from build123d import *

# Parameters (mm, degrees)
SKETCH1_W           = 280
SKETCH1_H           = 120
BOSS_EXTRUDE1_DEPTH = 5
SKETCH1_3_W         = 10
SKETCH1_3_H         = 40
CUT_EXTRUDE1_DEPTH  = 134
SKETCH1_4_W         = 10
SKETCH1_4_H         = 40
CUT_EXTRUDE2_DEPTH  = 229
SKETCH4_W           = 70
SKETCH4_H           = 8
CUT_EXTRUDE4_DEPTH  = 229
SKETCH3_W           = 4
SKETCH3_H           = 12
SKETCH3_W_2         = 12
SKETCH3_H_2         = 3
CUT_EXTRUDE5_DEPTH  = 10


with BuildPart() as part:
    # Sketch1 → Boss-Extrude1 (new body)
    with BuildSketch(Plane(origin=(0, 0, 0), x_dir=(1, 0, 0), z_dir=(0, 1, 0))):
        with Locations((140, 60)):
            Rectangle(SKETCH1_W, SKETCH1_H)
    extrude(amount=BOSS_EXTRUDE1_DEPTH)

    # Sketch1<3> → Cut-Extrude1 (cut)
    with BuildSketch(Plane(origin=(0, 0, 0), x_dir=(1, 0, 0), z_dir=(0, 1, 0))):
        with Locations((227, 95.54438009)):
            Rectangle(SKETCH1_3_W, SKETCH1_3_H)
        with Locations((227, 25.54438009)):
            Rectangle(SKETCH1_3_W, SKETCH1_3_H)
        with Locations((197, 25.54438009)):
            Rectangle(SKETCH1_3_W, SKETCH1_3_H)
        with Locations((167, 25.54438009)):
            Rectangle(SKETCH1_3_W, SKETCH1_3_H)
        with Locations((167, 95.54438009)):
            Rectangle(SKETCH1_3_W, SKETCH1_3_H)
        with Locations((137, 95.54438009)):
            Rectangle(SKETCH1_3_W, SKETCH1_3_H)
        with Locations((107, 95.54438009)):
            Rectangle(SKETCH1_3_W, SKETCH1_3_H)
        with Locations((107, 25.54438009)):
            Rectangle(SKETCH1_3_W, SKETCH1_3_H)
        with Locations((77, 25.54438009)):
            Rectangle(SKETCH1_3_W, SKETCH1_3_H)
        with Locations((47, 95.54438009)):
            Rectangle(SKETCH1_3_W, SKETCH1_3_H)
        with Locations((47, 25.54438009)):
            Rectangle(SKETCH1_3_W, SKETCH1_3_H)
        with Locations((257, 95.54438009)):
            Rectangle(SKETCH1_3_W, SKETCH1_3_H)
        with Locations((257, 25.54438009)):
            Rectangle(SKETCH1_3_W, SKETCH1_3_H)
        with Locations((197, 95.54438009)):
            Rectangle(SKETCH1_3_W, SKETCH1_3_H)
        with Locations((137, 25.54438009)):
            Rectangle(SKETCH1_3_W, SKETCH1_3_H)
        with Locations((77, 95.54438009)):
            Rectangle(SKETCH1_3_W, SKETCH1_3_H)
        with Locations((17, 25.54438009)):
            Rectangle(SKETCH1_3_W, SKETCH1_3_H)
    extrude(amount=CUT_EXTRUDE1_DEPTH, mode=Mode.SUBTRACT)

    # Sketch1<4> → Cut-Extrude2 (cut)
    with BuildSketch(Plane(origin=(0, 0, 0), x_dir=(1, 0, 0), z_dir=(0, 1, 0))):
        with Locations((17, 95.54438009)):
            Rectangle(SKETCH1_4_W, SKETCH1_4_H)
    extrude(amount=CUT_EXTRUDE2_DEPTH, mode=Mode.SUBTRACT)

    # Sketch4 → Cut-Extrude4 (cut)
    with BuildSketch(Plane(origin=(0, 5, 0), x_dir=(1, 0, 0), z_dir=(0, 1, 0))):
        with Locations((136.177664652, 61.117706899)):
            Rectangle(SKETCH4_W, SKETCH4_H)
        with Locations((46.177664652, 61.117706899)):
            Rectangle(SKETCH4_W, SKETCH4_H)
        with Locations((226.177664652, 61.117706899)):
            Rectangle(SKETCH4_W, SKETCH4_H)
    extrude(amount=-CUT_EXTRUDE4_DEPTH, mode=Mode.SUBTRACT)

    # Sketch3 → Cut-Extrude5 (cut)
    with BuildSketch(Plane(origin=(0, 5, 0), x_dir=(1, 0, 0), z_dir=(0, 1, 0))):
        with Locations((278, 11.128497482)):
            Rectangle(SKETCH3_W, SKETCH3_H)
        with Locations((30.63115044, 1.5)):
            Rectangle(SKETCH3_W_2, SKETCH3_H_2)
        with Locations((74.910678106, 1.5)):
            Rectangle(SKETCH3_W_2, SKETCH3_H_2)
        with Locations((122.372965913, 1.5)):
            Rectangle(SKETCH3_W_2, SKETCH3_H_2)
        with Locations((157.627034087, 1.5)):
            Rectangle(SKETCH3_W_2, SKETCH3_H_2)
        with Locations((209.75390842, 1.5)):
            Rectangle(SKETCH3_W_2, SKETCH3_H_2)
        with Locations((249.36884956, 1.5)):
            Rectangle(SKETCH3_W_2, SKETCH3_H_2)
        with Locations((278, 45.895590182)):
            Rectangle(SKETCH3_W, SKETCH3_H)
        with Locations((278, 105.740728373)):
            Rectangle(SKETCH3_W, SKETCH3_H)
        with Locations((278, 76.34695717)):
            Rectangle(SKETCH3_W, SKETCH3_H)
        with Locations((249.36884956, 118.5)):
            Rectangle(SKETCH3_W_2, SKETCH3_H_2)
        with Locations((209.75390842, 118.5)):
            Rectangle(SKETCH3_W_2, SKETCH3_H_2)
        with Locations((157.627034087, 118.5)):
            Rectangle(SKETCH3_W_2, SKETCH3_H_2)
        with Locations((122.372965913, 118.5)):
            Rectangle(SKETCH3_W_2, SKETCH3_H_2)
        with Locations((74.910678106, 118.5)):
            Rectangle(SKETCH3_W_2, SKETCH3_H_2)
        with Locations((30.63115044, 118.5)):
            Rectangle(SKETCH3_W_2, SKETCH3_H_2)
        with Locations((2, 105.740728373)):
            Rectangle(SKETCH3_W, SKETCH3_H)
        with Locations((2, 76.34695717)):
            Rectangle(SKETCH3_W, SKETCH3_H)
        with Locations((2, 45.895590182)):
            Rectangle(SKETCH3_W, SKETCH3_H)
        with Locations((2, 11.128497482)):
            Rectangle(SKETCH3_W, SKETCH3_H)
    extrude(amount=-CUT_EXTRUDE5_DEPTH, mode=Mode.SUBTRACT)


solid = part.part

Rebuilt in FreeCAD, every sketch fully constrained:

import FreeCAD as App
import Part
import Sketcher

V = App.Vector
Q = App.Units.Quantity


def add_polygon(sketch, points):
    """Adds a closed chain of lines whose ends are joined by coincident constraints."""
    first, n = sketch.GeometryCount, len(points)
    for a, b in zip(points, points[1:] + points[:1]):
        sketch.addGeometry(Part.LineSegment(App.Vector(*a, 0), App.Vector(*b, 0)), False)
    for i in range(n):
        sketch.addConstraint(Sketcher.Constraint("Coincident", first + i, 2, first + (i + 1) % n, 1))

doc = App.newDocument("Part")
body = doc.addObject("PartDesign::Body", "Body")

sketch1 = body.newObject("Sketcher::SketchObject", "Sketch")
sketch1.AttachmentSupport = (doc.getObject("XZ_Plane"), [""])
sketch1.MapMode = "FlatFace"
add_polygon(sketch1, [(0, -120), (0, 0), (280, 0), (280, -120)])
sketch1.addConstraint([
    Sketcher.Constraint("Vertical", 0),
    Sketcher.Constraint("Horizontal", 1),
    Sketcher.Constraint("Vertical", 2),
    Sketcher.Constraint("Horizontal", 3),
    Sketcher.Constraint("Coincident", 0, 2, -1, 1),
    Sketcher.Constraint("DistanceX", 1, 1, 1, 2, Q("280 mm")),
    Sketcher.Constraint("DistanceY", 0, 1, 0, 2, Q("120 mm")),
])
pad1 = body.newObject("PartDesign::Pad", "Pad")
pad1.Profile = sketch1
pad1.Length = 5
pad1.Reversed = True

sketch2 = body.newObject("Sketcher::SketchObject", "Sketch001")
sketch2.AttachmentSupport = (doc.getObject("XZ_Plane"), [""])
sketch2.MapMode = "FlatFace"
add_polygon(sketch2, [(222, -116), (222, -76), (232, -76), (232, -116)])
add_polygon(sketch2, [(222, -46), (222, -6), (232, -6), (232, -46)])
add_polygon(sketch2, [(192, -46), (192, -6), (202, -6), (202, -46)])
add_polygon(sketch2, [(162, -46), (162, -6), (172, -6), (172, -46)])
add_polygon(sketch2, [(162, -116), (162, -76), (172, -76), (172, -116)])
add_polygon(sketch2, [(132, -116), (132, -76), (142, -76), (142, -116)])
add_polygon(sketch2, [(102, -116), (102, -76), (112, -76), (112, -116)])
add_polygon(sketch2, [(102, -46), (102, -6), (112, -6), (112, -46)])
add_polygon(sketch2, [(72, -46), (72, -6), (82, -6), (82, -46)])
add_polygon(sketch2, [(42, -116), (42, -76), (52, -76), (52, -116)])
add_polygon(sketch2, [(42, -46), (42, -6), (52, -6), (52, -46)])
add_polygon(sketch2, [(252, -116), (252, -76), (262, -76), (262, -116)])
add_polygon(sketch2, [(252, -46), (252, -6), (262, -6), (262, -46)])
add_polygon(sketch2, [(192, -116), (192, -76), (202, -76), (202, -116)])
add_polygon(sketch2, [(132, -46), (132, -6), (142, -6), (142, -46)])
add_polygon(sketch2, [(72, -116), (72, -76), (82, -76), (82, -116)])
add_polygon(sketch2, [(12, -46), (12, -6), (22, -6), (22, -46)])
sketch2.addConstraint([
    Sketcher.Constraint("Vertical", 0),
    Sketcher.Constraint("Horizontal", 1),
    Sketcher.Constraint("Vertical", 2),
    Sketcher.Constraint("Horizontal", 3),
    Sketcher.Constraint("Vertical", 4),
    Sketcher.Constraint("Horizontal", 5),
    Sketcher.Constraint("Vertical", 6),
    Sketcher.Constraint("Horizontal", 7),
    Sketcher.Constraint("Vertical", 8),
    Sketcher.Constraint("Horizontal", 9),
    Sketcher.Constraint("Vertical", 10),
    Sketcher.Constraint("Horizontal", 11),
    Sketcher.Constraint("Vertical", 12),
    Sketcher.Constraint("Horizontal", 13),
    Sketcher.Constraint("Vertical", 14),
    Sketcher.Constraint("Horizontal", 15),
    Sketcher.Constraint("Vertical", 16),
    Sketcher.Constraint("Horizontal", 17),
    Sketcher.Constraint("Vertical", 18),
    Sketcher.Constraint("Horizontal", 19),
    Sketcher.Constraint("Vertical", 20),
    Sketcher.Constraint("Horizontal", 21),
    Sketcher.Constraint("Vertical", 22),
    Sketcher.Constraint("Horizontal", 23),
    Sketcher.Constraint("Vertical", 24),
    Sketcher.Constraint("Horizontal", 25),
    Sketcher.Constraint("Vertical", 26),
    Sketcher.Constraint("Horizontal", 27),
    Sketcher.Constraint("Vertical", 28),
    Sketcher.Constraint("Horizontal", 29),
    Sketcher.Constraint("Vertical", 30),
    Sketcher.Constraint("Horizontal", 31),
    Sketcher.Constraint("Vertical", 32),
    Sketcher.Constraint("Horizontal", 33),
    Sketcher.Constraint("Vertical", 34),
    Sketcher.Constraint("Horizontal", 35),
    Sketcher.Constraint("Vertical", 36),
    Sketcher.Constraint("Horizontal", 37),
    Sketcher.Constraint("Vertical", 38),
    Sketcher.Constraint("Horizontal", 39),
    Sketcher.Constraint("Vertical", 40),
    Sketcher.Constraint("Horizontal", 41),
    Sketcher.Constraint("Vertical", 42),
    Sketcher.Constraint("Horizontal", 43),
    Sketcher.Constraint("Vertical", 44),
    Sketcher.Constraint("Horizontal", 45),
    Sketcher.Constraint("Vertical", 46),
    Sketcher.Constraint("Horizontal", 47),
    Sketcher.Constraint("Vertical", 48),
    Sketcher.Constraint("Horizontal", 49),
    Sketcher.Constraint("Vertical", 50),
    Sketcher.Constraint("Horizontal", 51),
    Sketcher.Constraint("Vertical", 52),
    Sketcher.Constraint("Horizontal", 53),
    Sketcher.Constraint("Vertical", 54),
    Sketcher.Constraint("Horizontal", 55),
    Sketcher.Constraint("Vertical", 56),
    Sketcher.Constraint("Horizontal", 57),
    Sketcher.Constraint("Vertical", 58),
    Sketcher.Constraint("Horizontal", 59),
    Sketcher.Constraint("Vertical", 60),
    Sketcher.Constraint("Horizontal", 61),
    Sketcher.Constraint("Vertical", 62),
    Sketcher.Constraint("Horizontal", 63),
    Sketcher.Constraint("Vertical", 64),
    Sketcher.Constraint("Horizontal", 65),
    Sketcher.Constraint("Vertical", 66),
    Sketcher.Constraint("Horizontal", 67),
    Sketcher.Constraint("Horizontal", 5, 2, 8, 2),
    Sketcher.Constraint("Horizontal", 7, 2, 10, 2),
    Sketcher.Constraint("Horizontal", 9, 2, 12, 2),
    Sketcher.Constraint("Horizontal", 11, 2, 14, 2),
    Sketcher.Constraint("Horizontal", 1, 2, 16, 2),
    Sketcher.Constraint("Horizontal", 3, 2, 18, 2),
    Sketcher.Constraint("Horizontal", 17, 2, 20, 2),
    Sketcher.Constraint("Horizontal", 19, 2, 22, 2),
    Sketcher.Constraint("Horizontal", 21, 2, 24, 2),
    Sketcher.Constraint("Horizontal", 23, 2, 26, 2),
    Sketcher.Constraint("Horizontal", 13, 2, 28, 2),
    Sketcher.Constraint("Horizontal", 15, 2, 30, 2),
    Sketcher.Constraint("Horizontal", 29, 2, 32, 2),
    Sketcher.Constraint("Horizontal", 31, 2, 34, 2),
    Sketcher.Constraint("Horizontal", 25, 2, 36, 2),
    Sketcher.Constraint("Horizontal", 27, 2, 38, 2),
    Sketcher.Constraint("Horizontal", 33, 2, 40, 2),
    Sketcher.Constraint("Horizontal", 35, 2, 42, 2),
    Sketcher.Constraint("Horizontal", 37, 2, 44, 2),
    Sketcher.Constraint("Horizontal", 39, 2, 46, 2),
    Sketcher.Constraint("Horizontal", 41, 2, 48, 2),
    Sketcher.Constraint("Horizontal", 43, 2, 50, 2),
    Sketcher.Constraint("Horizontal", 45, 2, 52, 2),
    Sketcher.Constraint("Horizontal", 47, 2, 54, 2),
    Sketcher.Constraint("Horizontal", 49, 2, 56, 2),
    Sketcher.Constraint("Horizontal", 51, 2, 58, 2),
    Sketcher.Constraint("Horizontal", 53, 2, 60, 2),
    Sketcher.Constraint("Horizontal", 55, 2, 62, 2),
    Sketcher.Constraint("Horizontal", 57, 2, 64, 2),
    Sketcher.Constraint("Horizontal", 59, 2, 66, 2),
    Sketcher.Constraint("Vertical", 3, 2, 4, 2),
    Sketcher.Constraint("Vertical", 2, 2, 5, 2),
    Sketcher.Constraint("Vertical", 15, 2, 16, 2),
    Sketcher.Constraint("Vertical", 14, 2, 17, 2),
    Sketcher.Constraint("Vertical", 27, 2, 28, 2),
    Sketcher.Constraint("Vertical", 26, 2, 29, 2),
    Sketcher.Constraint("Vertical", 39, 2, 40, 2),
    Sketcher.Constraint("Vertical", 38, 2, 41, 2),
    Sketcher.Constraint("Vertical", 47, 2, 48, 2),
    Sketcher.Constraint("Vertical", 46, 2, 49, 2),
    Sketcher.Constraint("Vertical", 11, 2, 52, 2),
    Sketcher.Constraint("Vertical", 10, 2, 53, 2),
    Sketcher.Constraint("Vertical", 23, 2, 56, 2),
    Sketcher.Constraint("Vertical", 22, 2, 57, 2),
    Sketcher.Constraint("Vertical", 35, 2, 60, 2),
    Sketcher.Constraint("Vertical", 34, 2, 61, 2),
    Sketcher.Constraint("Equal", 7, 9),
    Sketcher.Constraint("Equal", 11, 13),
    Sketcher.Constraint("Equal", 19, 21),
    Sketcher.Constraint("Equal", 23, 25),
    Sketcher.Constraint("Equal", 31, 33),
    Sketcher.Constraint("Equal", 35, 37),
    Sketcher.Constraint("Equal", 43, 45),
    Sketcher.Constraint("Equal", 63, 65),
    Sketcher.Constraint("Equal", 2, 4),
    Sketcher.Constraint("DistanceX", 1, 1, 1, 2, Q("10 mm")),
    Sketcher.Constraint("DistanceY", 0, 1, 0, 2, Q("40 mm")),
    Sketcher.Constraint("DistanceX", -1, 1, 0, 2, Q("222 mm")),
    Sketcher.Constraint("DistanceX", -1, 1, 8, 2, Q("192 mm")),
    Sketcher.Constraint("DistanceX", -1, 1, 12, 2, Q("162 mm")),
    Sketcher.Constraint("DistanceX", -1, 1, 20, 2, Q("132 mm")),
    Sketcher.Constraint("DistanceX", -1, 1, 24, 2, Q("102 mm")),
    Sketcher.Constraint("DistanceX", -1, 1, 32, 2, Q("72 mm")),
    Sketcher.Constraint("DistanceX", -1, 1, 36, 2, Q("42 mm")),
    Sketcher.Constraint("DistanceX", -1, 1, 44, 2, Q("252 mm")),
    Sketcher.Constraint("DistanceX", -1, 1, 64, 2, Q("12 mm")),
    Sketcher.Constraint("DistanceY", 0, 2, -1, 1, Q("75.54438 mm")),
    Sketcher.Constraint("DistanceY", 4, 2, -1, 1, Q("5.54438 mm")),
])
pocket1 = body.newObject("PartDesign::Pocket", "Pocket")
pocket1.Profile = sketch2
pocket1.Length = 134

sketch3 = body.newObject("Sketcher::SketchObject", "Sketch002")
sketch3.AttachmentSupport = (doc.getObject("XZ_Plane"), [""])
sketch3.MapMode = "FlatFace"
add_polygon(sketch3, [(12, -116), (12, -76), (22, -76), (22, -116)])
sketch3.addConstraint([
    Sketcher.Constraint("Vertical", 0),
    Sketcher.Constraint("Horizontal", 1),
    Sketcher.Constraint("Vertical", 2),
    Sketcher.Constraint("Horizontal", 3),
    Sketcher.Constraint("DistanceX", 1, 1, 1, 2, Q("10 mm")),
    Sketcher.Constraint("DistanceY", 0, 1, 0, 2, Q("40 mm")),
    Sketcher.Constraint("DistanceX", -1, 1, 0, 2, Q("12 mm")),
    Sketcher.Constraint("DistanceY", 0, 2, -1, 1, Q("75.54438 mm")),
])
pocket2 = body.newObject("PartDesign::Pocket", "Pocket001")
pocket2.Profile = sketch3
pocket2.Length = 229

sketch4 = body.newObject("Sketcher::SketchObject", "Sketch003")
sketch4.AttachmentSupport = (doc.getObject("XZ_Plane"), [""])
sketch4.MapMode = "FlatFace"
sketch4.AttachmentOffset = App.Placement(V(0, 0, -5), App.Rotation())
add_polygon(sketch4, [(101, -65), (101, -57), (171, -57), (171, -65)])
add_polygon(sketch4, [(11, -65), (11, -57), (81, -57), (81, -65)])
add_polygon(sketch4, [(191, -65), (191, -57), (261, -57), (261, -65)])
sketch4.addConstraint([
    Sketcher.Constraint("Vertical", 0),
    Sketcher.Constraint("Horizontal", 1),
    Sketcher.Constraint("Vertical", 2),
    Sketcher.Constraint("Horizontal", 3),
    Sketcher.Constraint("Vertical", 4),
    Sketcher.Constraint("Horizontal", 5),
    Sketcher.Constraint("Vertical", 6),
    Sketcher.Constraint("Horizontal", 7),
    Sketcher.Constraint("Vertical", 8),
    Sketcher.Constraint("Horizontal", 9),
    Sketcher.Constraint("Vertical", 10),
    Sketcher.Constraint("Horizontal", 11),
    Sketcher.Constraint("Horizontal", 1, 2, 4, 2),
    Sketcher.Constraint("Horizontal", 3, 2, 6, 2),
    Sketcher.Constraint("Horizontal", 5, 2, 8, 2),
    Sketcher.Constraint("Horizontal", 7, 2, 10, 2),
    Sketcher.Constraint("Equal", 3, 5),
    Sketcher.Constraint("Equal", 7, 9),
    Sketcher.Constraint("DistanceX", 1, 1, 1, 2, Q("70 mm")),
    Sketcher.Constraint("DistanceY", 0, 1, 0, 2, Q("8 mm")),
    Sketcher.Constraint("DistanceX", 4, 2, 0, 2, Q("90 mm")),
    Sketcher.Constraint("DistanceX", 1, 2, 8, 2, Q("20 mm")),
    Sketcher.Constraint("DistanceX", -1, 1, 0, 2, Q("101.177665 mm")),
    Sketcher.Constraint("DistanceY", 0, 2, -1, 1, Q("57.117707 mm")),
])
pocket3 = body.newObject("PartDesign::Pocket", "Pocket002")
pocket3.Profile = sketch4
pocket3.Length = 229
pocket3.Reversed = True

sketch5 = body.newObject("Sketcher::SketchObject", "Sketch004")
sketch5.AttachmentSupport = (doc.getObject("XZ_Plane"), [""])
sketch5.MapMode = "FlatFace"
sketch5.AttachmentOffset = App.Placement(V(0, 0, -5), App.Rotation())
add_polygon(sketch5, [(276, -17.1), (276, -5.1), (280, -5.1), (280, -17.1)])
add_polygon(sketch5, [(24.6, -3), (24.6, 0), (36.6, 0), (36.6, -3)])
add_polygon(sketch5, [(68.9, -3), (68.9, 0), (80.9, 0), (80.9, -3)])
add_polygon(sketch5, [(116.4, -3), (116.4, 0), (128.4, 0), (128.4, -3)])
add_polygon(sketch5, [(151.6, -3), (151.6, 0), (163.6, 0), (163.6, -3)])
add_polygon(sketch5, [(203.8, -3), (203.8, 0), (215.8, 0), (215.8, -3)])
add_polygon(sketch5, [(243.4, -3), (243.4, 0), (255.4, 0), (255.4, -3)])
add_polygon(sketch5, [(276, -51.9), (276, -39.9), (280, -39.9), (280, -51.9)])
add_polygon(sketch5, [(276, -111.7), (276, -99.7), (280, -99.7), (280, -111.7)])
add_polygon(sketch5, [(276, -82.3), (276, -70.3), (280, -70.3), (280, -82.3)])
add_polygon(sketch5, [(243.4, -120), (243.4, -117), (255.4, -117), (255.4, -120)])
add_polygon(sketch5, [(203.8, -120), (203.8, -117), (215.8, -117), (215.8, -120)])
add_polygon(sketch5, [(151.6, -120), (151.6, -117), (163.6, -117), (163.6, -120)])
add_polygon(sketch5, [(116.4, -120), (116.4, -117), (128.4, -117), (128.4, -120)])
add_polygon(sketch5, [(68.9, -120), (68.9, -117), (80.9, -117), (80.9, -120)])
add_polygon(sketch5, [(24.6, -120), (24.6, -117), (36.6, -117), (36.6, -120)])
add_polygon(sketch5, [(0, -111.7), (0, -99.7), (4, -99.7), (4, -111.7)])
add_polygon(sketch5, [(0, -82.3), (0, -70.3), (4, -70.3), (4, -82.3)])
add_polygon(sketch5, [(0, -51.9), (0, -39.9), (4, -39.9), (4, -51.9)])
add_polygon(sketch5, [(0, -17.1), (0, -5.1), (4, -5.1), (4, -17.1)])
sketch5.addConstraint([
    Sketcher.Constraint("Vertical", 0),
    Sketcher.Constraint("Horizontal", 1),
    Sketcher.Constraint("Vertical", 2),
    Sketcher.Constraint("Horizontal", 3),
    Sketcher.Constraint("Vertical", 4),
    Sketcher.Constraint("Horizontal", 5),
    Sketcher.Constraint("Vertical", 6),
    Sketcher.Constraint("Horizontal", 7),
    Sketcher.Constraint("Vertical", 8),
    Sketcher.Constraint("Horizontal", 9),
    Sketcher.Constraint("Vertical", 10),
    Sketcher.Constraint("Horizontal", 11),
    Sketcher.Constraint("Vertical", 12),
    Sketcher.Constraint("Horizontal", 13),
    Sketcher.Constraint("Vertical", 14),
    Sketcher.Constraint("Horizontal", 15),
    Sketcher.Constraint("Vertical", 16),
    Sketcher.Constraint("Horizontal", 17),
    Sketcher.Constraint("Vertical", 18),
    Sketcher.Constraint("Horizontal", 19),
    Sketcher.Constraint("Vertical", 20),
    Sketcher.Constraint("Horizontal", 21),
    Sketcher.Constraint("Vertical", 22),
    Sketcher.Constraint("Horizontal", 23),
    Sketcher.Constraint("Vertical", 24),
    Sketcher.Constraint("Horizontal", 25),
    Sketcher.Constraint("Vertical", 26),
    Sketcher.Constraint("Horizontal", 27),
    Sketcher.Constraint("Vertical", 28),
    Sketcher.Constraint("Horizontal", 29),
    Sketcher.Constraint("Vertical", 30),
    Sketcher.Constraint("Horizontal", 31),
    Sketcher.Constraint("Vertical", 32),
    Sketcher.Constraint("Horizontal", 33),
    Sketcher.Constraint("Vertical", 34),
    Sketcher.Constraint("Horizontal", 35),
    Sketcher.Constraint("Vertical", 36),
    Sketcher.Constraint("Horizontal", 37),
    Sketcher.Constraint("Vertical", 38),
    Sketcher.Constraint("Horizontal", 39),
    Sketcher.Constraint("Vertical", 40),
    Sketcher.Constraint("Horizontal", 41),
    Sketcher.Constraint("Vertical", 42),
    Sketcher.Constraint("Horizontal", 43),
    Sketcher.Constraint("Vertical", 44),
    Sketcher.Constraint("Horizontal", 45),
    Sketcher.Constraint("Vertical", 46),
    Sketcher.Constraint("Horizontal", 47),
    Sketcher.Constraint("Vertical", 48),
    Sketcher.Constraint("Horizontal", 49),
    Sketcher.Constraint("Vertical", 50),
    Sketcher.Constraint("Horizontal", 51),
    Sketcher.Constraint("Vertical", 52),
    Sketcher.Constraint("Horizontal", 53),
    Sketcher.Constraint("Vertical", 54),
    Sketcher.Constraint("Horizontal", 55),
    Sketcher.Constraint("Vertical", 56),
    Sketcher.Constraint("Horizontal", 57),
    Sketcher.Constraint("Vertical", 58),
    Sketcher.Constraint("Horizontal", 59),
    Sketcher.Constraint("Vertical", 60),
    Sketcher.Constraint("Horizontal", 61),
    Sketcher.Constraint("Vertical", 62),
    Sketcher.Constraint("Horizontal", 63),
    Sketcher.Constraint("Vertical", 64),
    Sketcher.Constraint("Horizontal", 65),
    Sketcher.Constraint("Vertical", 66),
    Sketcher.Constraint("Horizontal", 67),
    Sketcher.Constraint("Vertical", 68),
    Sketcher.Constraint("Horizontal", 69),
    Sketcher.Constraint("Vertical", 70),
    Sketcher.Constraint("Horizontal", 71),
    Sketcher.Constraint("Vertical", 72),
    Sketcher.Constraint("Horizontal", 73),
    Sketcher.Constraint("Vertical", 74),
    Sketcher.Constraint("Horizontal", 75),
    Sketcher.Constraint("Vertical", 76),
    Sketcher.Constraint("Horizontal", 77),
    Sketcher.Constraint("Vertical", 78),
    Sketcher.Constraint("Horizontal", 79),
    Sketcher.Constraint("PointOnObject", 4, 2, -1),
    Sketcher.Constraint("PointOnObject", 8, 2, -1),
    Sketcher.Constraint("PointOnObject", 12, 2, -1),
    Sketcher.Constraint("PointOnObject", 16, 2, -1),
    Sketcher.Constraint("PointOnObject", 20, 2, -1),
    Sketcher.Constraint("PointOnObject", 24, 2, -1),
    Sketcher.Constraint("PointOnObject", 64, 2, -2),
    Sketcher.Constraint("PointOnObject", 68, 2, -2),
    Sketcher.Constraint("PointOnObject", 72, 2, -2),
    Sketcher.Constraint("PointOnObject", 76, 2, -2),
    Sketcher.Constraint("Horizontal", 7, 2, 10, 2),
    Sketcher.Constraint("Horizontal", 11, 2, 14, 2),
    Sketcher.Constraint("Horizontal", 15, 2, 18, 2),
    Sketcher.Constraint("Horizontal", 19, 2, 22, 2),
    Sketcher.Constraint("Horizontal", 23, 2, 26, 2),
    Sketcher.Constraint("Horizontal", 41, 2, 44, 2),
    Sketcher.Constraint("Horizontal", 43, 2, 46, 2),
    Sketcher.Constraint("Horizontal", 45, 2, 48, 2),
    Sketcher.Constraint("Horizontal", 47, 2, 50, 2),
    Sketcher.Constraint("Horizontal", 49, 2, 52, 2),
    Sketcher.Constraint("Horizontal", 51, 2, 54, 2),
    Sketcher.Constraint("Horizontal", 53, 2, 56, 2),
    Sketcher.Constraint("Horizontal", 55, 2, 58, 2),
    Sketcher.Constraint("Horizontal", 57, 2, 60, 2),
    Sketcher.Constraint("Horizontal", 59, 2, 62, 2),
    Sketcher.Constraint("Horizontal", 33, 2, 64, 2),
    Sketcher.Constraint("Horizontal", 35, 2, 66, 2),
    Sketcher.Constraint("Horizontal", 37, 2, 68, 2),
    Sketcher.Constraint("Horizontal", 39, 2, 70, 2),
    Sketcher.Constraint("Horizontal", 29, 2, 72, 2),
    Sketcher.Constraint("Horizontal", 31, 2, 74, 2),
    Sketcher.Constraint("Horizontal", 1, 2, 76, 2),
    Sketcher.Constraint("Horizontal", 3, 2, 78, 2),
    Sketcher.Constraint("Vertical", 3, 2, 28, 2),
    Sketcher.Constraint("Vertical", 2, 2, 29, 2),
    Sketcher.Constraint("Vertical", 31, 2, 32, 2),
    Sketcher.Constraint("Vertical", 30, 2, 33, 2),
    Sketcher.Constraint("Vertical", 35, 2, 36, 2),
    Sketcher.Constraint("Vertical", 34, 2, 37, 2),
    Sketcher.Constraint("Vertical", 27, 2, 40, 2),
    Sketcher.Constraint("Vertical", 26, 2, 41, 2),
    Sketcher.Constraint("Vertical", 23, 2, 44, 2),
    Sketcher.Constraint("Vertical", 22, 2, 45, 2),
    Sketcher.Constraint("Vertical", 19, 2, 48, 2),
    Sketcher.Constraint("Vertical", 18, 2, 49, 2),
    Sketcher.Constraint("Vertical", 15, 2, 52, 2),
    Sketcher.Constraint("Vertical", 14, 2, 53, 2),
    Sketcher.Constraint("Vertical", 11, 2, 56, 2),
    Sketcher.Constraint("Vertical", 10, 2, 57, 2),
    Sketcher.Constraint("Vertical", 7, 2, 60, 2),
    Sketcher.Constraint("Vertical", 6, 2, 61, 2),
    Sketcher.Constraint("Vertical", 66, 2, 69, 2),
    Sketcher.Constraint("Vertical", 70, 2, 73, 2),
    Sketcher.Constraint("Vertical", 74, 2, 77, 2),
    Sketcher.Constraint("Equal", 7, 9),
    Sketcher.Constraint("Equal", 11, 13),
    Sketcher.Constraint("Equal", 15, 17),
    Sketcher.Constraint("Equal", 19, 21),
    Sketcher.Constraint("Equal", 23, 25),
    Sketcher.Constraint("Equal", 39, 65),
    Sketcher.Constraint("Equal", 63, 0),
    Sketcher.Constraint("Equal", 2, 28),
    Sketcher.Constraint("Equal", 30, 32),
    Sketcher.Constraint("Equal", 34, 36),
    Sketcher.Constraint("Equal", 26, 40),
    Sketcher.Constraint("DistanceX", 1, 1, 1, 2, Q("4 mm")),
    Sketcher.Constraint("DistanceX", 5, 1, 5, 2, Q("12 mm")),
    Sketcher.Constraint("DistanceY", 4, 1, 4, 2, Q("3 mm")),
    Sketcher.Constraint("DistanceX", -1, 1, 0, 2, Q("276 mm")),
    Sketcher.Constraint("DistanceY", 40, 2, -1, 1, Q("117 mm")),
    Sketcher.Constraint("DistanceX", -1, 1, 4, 2, Q("24.63115 mm")),
    Sketcher.Constraint("DistanceX", -1, 1, 8, 2, Q("68.910678 mm")),
    Sketcher.Constraint("DistanceX", -1, 1, 20, 2, Q("203.753908 mm")),
    Sketcher.Constraint("DistanceX", -1, 1, 24, 2, Q("243.36885 mm")),
    Sketcher.Constraint("DistanceY", 28, 2, -1, 1, Q("39.89559 mm")),
    Sketcher.Constraint("DistanceY", 32, 2, -1, 1, Q("99.740728 mm")),
    Sketcher.Constraint("DistanceY", 0, 2, -1, 1, Q("5.128497 mm")),
    Sketcher.Constraint("DistanceX", -1, 1, 12, 2, Q("116.372966 mm")),
    Sketcher.Constraint("DistanceX", -1, 1, 16, 2, Q("151.627034 mm")),
    Sketcher.Constraint("DistanceY", 36, 2, -1, 1, Q("70.346957 mm")),
])
pocket4 = body.newObject("PartDesign::Pocket", "Pocket003")
pocket4.Profile = sketch5
pocket4.Length = 10
pocket4.Reversed = True

doc.recompute()
